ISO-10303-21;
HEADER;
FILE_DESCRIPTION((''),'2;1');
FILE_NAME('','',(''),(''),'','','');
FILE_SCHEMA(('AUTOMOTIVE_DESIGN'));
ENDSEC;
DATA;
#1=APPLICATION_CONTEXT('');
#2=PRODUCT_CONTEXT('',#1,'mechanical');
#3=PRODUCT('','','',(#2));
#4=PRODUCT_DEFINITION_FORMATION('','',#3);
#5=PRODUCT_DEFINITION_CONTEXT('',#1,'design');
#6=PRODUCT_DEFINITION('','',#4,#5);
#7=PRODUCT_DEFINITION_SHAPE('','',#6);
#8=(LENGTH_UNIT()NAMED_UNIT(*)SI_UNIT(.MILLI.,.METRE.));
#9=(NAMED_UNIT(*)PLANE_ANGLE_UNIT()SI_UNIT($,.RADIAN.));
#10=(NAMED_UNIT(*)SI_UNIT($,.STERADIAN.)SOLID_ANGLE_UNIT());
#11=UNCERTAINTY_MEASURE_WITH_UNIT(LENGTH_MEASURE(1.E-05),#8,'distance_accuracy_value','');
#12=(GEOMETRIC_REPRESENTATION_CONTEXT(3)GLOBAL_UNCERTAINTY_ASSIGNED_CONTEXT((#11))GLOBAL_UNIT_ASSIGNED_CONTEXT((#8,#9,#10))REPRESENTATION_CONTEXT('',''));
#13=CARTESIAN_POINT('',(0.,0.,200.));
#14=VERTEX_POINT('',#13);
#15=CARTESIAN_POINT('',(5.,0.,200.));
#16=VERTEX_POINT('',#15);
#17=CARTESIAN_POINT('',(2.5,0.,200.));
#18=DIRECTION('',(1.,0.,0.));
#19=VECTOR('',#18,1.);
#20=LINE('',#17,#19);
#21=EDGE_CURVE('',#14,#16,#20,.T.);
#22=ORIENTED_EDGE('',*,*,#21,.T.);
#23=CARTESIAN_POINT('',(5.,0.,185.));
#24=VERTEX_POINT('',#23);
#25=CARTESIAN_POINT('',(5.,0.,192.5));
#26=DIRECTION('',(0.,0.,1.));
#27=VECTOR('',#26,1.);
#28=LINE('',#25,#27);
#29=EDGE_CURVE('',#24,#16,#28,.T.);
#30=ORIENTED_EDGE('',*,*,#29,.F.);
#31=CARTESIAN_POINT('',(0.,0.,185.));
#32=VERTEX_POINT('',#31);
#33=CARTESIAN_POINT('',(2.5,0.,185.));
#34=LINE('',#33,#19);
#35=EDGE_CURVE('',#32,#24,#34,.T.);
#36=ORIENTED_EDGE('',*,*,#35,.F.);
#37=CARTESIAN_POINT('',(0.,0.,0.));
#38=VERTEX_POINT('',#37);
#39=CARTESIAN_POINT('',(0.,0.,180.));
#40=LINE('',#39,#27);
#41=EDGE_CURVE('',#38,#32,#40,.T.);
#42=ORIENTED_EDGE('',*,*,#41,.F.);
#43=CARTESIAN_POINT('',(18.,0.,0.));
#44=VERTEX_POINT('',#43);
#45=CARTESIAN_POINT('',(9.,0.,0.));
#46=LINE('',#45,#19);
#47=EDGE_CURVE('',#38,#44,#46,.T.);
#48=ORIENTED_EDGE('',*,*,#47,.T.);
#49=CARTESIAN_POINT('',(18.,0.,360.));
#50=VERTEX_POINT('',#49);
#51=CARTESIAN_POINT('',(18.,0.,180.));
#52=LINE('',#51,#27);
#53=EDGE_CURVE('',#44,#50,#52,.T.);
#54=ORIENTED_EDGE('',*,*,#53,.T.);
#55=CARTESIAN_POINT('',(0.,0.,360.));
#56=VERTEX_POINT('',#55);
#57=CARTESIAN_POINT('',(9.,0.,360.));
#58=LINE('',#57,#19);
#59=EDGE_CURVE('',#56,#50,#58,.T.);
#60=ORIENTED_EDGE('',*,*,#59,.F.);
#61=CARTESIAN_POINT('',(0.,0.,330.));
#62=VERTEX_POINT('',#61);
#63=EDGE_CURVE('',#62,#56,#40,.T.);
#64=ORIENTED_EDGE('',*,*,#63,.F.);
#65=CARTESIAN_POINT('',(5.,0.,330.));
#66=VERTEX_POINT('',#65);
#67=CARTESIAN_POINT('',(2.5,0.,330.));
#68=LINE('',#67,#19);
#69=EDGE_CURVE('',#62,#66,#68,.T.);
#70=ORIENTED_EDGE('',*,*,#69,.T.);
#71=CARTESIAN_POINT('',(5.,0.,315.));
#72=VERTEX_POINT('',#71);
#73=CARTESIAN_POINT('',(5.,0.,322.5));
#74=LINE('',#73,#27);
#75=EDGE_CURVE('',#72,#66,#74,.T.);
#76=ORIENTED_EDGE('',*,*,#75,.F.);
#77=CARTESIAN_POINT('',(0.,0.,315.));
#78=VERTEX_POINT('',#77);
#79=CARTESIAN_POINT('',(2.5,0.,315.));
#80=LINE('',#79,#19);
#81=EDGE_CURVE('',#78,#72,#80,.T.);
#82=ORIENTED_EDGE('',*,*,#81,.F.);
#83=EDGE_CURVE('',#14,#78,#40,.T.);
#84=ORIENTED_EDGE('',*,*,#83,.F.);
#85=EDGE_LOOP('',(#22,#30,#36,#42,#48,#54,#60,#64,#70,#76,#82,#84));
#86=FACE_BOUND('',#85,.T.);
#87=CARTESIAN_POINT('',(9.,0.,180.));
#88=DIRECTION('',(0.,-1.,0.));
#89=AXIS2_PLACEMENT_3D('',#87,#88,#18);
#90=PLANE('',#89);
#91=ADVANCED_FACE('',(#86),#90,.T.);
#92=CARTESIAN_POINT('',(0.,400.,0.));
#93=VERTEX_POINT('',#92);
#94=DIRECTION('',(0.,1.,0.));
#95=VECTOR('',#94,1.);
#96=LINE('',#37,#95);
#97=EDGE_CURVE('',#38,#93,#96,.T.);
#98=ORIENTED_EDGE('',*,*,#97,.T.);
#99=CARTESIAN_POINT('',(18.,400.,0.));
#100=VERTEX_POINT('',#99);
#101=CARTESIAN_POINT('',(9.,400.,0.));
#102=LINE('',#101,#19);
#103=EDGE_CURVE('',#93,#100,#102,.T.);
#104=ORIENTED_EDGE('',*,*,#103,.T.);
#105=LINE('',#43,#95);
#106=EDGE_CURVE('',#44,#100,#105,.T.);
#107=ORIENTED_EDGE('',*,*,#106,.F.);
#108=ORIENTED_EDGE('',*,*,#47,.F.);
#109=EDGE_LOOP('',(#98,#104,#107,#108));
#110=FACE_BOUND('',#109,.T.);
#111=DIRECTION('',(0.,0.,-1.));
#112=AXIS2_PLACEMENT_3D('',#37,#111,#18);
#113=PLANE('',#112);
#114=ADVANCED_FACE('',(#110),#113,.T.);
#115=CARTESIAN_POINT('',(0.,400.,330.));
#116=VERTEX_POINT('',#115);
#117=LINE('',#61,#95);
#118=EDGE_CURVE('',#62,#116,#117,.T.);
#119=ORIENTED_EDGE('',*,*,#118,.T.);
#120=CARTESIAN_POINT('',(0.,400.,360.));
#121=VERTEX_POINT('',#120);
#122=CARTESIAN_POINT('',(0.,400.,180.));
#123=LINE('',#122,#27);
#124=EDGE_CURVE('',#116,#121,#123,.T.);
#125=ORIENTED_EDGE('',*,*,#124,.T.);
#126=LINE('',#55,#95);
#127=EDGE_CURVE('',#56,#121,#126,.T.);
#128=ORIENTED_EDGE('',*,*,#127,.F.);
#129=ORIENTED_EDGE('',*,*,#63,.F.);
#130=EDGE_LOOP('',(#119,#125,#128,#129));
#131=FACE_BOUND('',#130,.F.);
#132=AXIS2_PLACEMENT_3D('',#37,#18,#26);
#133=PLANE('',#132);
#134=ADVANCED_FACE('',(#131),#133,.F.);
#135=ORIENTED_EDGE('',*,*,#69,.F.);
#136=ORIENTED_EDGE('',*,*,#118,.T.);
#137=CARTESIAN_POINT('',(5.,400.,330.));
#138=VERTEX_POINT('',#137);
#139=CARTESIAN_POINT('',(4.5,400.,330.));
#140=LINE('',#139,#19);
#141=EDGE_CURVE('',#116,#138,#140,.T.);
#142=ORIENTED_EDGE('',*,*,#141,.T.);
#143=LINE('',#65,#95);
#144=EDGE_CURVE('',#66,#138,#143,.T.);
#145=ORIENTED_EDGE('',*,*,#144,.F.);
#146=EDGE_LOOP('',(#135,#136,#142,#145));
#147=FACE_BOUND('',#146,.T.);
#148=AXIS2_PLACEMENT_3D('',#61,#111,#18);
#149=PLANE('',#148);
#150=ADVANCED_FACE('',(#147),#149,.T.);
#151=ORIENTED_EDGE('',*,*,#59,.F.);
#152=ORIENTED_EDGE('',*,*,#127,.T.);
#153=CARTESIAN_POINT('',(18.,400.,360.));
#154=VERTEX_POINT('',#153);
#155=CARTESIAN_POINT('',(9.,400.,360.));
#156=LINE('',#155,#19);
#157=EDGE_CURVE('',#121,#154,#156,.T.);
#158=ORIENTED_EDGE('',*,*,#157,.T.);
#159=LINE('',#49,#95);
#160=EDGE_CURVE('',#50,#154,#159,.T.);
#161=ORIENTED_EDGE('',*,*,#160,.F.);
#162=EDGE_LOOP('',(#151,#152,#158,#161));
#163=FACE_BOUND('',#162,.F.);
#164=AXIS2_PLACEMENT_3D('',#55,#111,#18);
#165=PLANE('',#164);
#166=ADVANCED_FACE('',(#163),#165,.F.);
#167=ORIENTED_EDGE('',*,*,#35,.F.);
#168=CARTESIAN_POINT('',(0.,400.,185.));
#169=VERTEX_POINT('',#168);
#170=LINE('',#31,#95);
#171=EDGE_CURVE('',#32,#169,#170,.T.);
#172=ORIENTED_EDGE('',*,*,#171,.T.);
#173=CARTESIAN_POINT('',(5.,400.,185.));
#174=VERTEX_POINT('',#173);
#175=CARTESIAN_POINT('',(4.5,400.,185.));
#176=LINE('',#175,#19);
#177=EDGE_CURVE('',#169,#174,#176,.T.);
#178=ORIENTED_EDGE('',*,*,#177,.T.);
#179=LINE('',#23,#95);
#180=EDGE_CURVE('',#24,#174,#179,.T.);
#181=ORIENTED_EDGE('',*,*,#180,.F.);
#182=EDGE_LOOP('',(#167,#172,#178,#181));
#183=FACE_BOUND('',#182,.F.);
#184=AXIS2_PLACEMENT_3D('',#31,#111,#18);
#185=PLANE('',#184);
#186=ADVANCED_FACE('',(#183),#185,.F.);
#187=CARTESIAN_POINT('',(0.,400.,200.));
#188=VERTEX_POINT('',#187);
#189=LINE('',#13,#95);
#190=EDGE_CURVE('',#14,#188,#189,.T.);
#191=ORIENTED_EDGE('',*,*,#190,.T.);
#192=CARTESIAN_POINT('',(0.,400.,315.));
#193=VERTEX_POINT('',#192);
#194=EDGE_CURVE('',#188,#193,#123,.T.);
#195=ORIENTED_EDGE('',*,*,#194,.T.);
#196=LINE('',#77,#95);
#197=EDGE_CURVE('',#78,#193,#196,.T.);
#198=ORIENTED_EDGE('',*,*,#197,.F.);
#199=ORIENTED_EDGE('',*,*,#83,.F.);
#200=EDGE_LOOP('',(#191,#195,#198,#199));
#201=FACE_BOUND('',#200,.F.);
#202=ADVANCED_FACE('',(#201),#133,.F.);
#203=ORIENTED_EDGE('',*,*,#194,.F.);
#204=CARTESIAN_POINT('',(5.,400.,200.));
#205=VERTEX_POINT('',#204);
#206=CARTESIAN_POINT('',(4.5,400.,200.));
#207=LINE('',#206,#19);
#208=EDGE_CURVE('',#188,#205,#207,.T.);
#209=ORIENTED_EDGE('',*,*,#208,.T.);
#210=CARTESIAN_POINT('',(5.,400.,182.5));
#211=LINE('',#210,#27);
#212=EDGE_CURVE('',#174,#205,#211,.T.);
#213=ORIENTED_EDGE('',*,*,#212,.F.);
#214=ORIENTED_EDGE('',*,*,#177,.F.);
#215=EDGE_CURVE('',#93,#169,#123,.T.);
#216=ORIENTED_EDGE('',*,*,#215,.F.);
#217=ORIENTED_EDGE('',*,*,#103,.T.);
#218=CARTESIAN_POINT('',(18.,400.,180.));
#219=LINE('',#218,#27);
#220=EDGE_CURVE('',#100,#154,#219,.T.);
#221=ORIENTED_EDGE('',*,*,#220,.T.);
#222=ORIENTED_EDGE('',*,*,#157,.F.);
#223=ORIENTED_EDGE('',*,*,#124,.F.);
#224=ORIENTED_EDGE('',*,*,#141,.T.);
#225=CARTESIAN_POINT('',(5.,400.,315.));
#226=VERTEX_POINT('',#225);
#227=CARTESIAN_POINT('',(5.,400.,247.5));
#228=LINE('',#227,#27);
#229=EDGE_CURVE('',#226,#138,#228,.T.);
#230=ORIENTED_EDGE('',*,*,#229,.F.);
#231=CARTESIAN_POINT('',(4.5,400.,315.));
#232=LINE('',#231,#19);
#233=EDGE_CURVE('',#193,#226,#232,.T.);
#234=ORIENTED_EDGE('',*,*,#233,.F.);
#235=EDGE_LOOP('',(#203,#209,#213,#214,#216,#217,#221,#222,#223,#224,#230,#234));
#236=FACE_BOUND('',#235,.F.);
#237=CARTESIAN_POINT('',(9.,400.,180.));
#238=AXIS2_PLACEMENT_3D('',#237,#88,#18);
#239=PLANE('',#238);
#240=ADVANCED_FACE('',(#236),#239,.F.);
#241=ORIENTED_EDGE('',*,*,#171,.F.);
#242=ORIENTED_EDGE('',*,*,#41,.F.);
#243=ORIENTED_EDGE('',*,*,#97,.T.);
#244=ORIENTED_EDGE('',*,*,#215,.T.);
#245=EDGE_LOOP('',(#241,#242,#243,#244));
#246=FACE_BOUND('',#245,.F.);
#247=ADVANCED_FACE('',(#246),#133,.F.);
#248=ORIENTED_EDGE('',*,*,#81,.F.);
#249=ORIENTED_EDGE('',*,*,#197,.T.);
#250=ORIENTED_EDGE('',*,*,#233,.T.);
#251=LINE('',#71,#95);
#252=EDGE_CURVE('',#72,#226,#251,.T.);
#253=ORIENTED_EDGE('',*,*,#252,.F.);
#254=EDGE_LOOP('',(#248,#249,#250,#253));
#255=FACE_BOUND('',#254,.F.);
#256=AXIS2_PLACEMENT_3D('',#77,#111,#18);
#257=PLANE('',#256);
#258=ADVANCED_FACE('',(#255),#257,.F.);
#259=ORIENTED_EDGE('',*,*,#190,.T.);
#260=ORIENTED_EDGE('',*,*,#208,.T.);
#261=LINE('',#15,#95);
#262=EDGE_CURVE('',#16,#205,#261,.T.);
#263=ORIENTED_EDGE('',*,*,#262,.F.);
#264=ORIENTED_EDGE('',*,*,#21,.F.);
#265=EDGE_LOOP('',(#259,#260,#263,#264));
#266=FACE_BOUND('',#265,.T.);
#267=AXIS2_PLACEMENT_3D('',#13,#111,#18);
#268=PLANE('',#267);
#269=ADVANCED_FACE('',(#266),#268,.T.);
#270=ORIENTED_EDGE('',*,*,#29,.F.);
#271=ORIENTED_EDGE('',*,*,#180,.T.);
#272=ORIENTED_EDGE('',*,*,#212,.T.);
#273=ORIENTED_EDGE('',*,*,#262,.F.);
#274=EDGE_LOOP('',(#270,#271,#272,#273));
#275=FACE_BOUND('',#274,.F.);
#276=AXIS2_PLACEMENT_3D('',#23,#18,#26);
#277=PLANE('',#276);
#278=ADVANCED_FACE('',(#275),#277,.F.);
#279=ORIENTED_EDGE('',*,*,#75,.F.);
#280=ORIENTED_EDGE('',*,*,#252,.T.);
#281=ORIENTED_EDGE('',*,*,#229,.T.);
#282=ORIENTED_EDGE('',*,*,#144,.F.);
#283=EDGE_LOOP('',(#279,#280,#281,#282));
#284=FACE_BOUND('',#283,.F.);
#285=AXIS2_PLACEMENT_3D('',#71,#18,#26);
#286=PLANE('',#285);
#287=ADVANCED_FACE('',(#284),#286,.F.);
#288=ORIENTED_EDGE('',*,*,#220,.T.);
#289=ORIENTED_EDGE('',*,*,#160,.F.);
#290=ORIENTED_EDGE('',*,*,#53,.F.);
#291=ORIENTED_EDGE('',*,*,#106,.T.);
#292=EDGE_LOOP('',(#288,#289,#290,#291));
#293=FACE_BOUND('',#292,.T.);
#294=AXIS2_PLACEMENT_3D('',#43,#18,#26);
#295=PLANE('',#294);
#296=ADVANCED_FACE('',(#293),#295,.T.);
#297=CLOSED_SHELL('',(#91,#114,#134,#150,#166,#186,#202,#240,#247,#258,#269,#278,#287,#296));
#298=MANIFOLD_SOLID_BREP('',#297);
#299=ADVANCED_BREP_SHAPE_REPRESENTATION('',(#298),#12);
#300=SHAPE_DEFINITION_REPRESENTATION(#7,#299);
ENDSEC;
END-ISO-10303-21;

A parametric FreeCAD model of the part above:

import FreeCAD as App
import Part
import Sketcher

V = App.Vector

doc = App.newDocument("Part")
body = doc.addObject("PartDesign::Body", "Body")

# Sketch on XZ plane
sketch1 = body.newObject("Sketcher::SketchObject", "Sketch")
sketch1.AttachmentSupport = (doc.getObject("XZ_Plane"), [""])
sketch1.MapMode = "FlatFace"
sketch1.addGeometry([
    Part.LineSegment(V(0, 360, 0), V(0, 0, 0)),
    Part.LineSegment(V(0, 0, 0), V(18, 0, 0)),
    Part.LineSegment(V(18, 0, 0), V(18, 360, 0)),
    Part.LineSegment(V(18, 360, 0), V(0, 360, 0)),
], False)
sketch1.addConstraint([
    Sketcher.Constraint("Coincident", 0, 2, 1, 1),
    Sketcher.Constraint("Coincident", 1, 2, 2, 1),
    Sketcher.Constraint("Coincident", 2, 2, 3, 1),
    Sketcher.Constraint("Coincident", 3, 2, 0, 1),
    Sketcher.Constraint("Vertical", 0),
    Sketcher.Constraint("Horizontal", 1),
    Sketcher.Constraint("Vertical", 2),
    Sketcher.Constraint("Horizontal", 3),
    Sketcher.Constraint("Coincident", 0, 2, -1, 1),
    Sketcher.Constraint("DistanceX", 1, 1, 1, 2, 18.0),
    Sketcher.Constraint("DistanceY", 0, 2, 0, 1, 360.0),
])
pad1 = body.newObject("PartDesign::Pad", "Pad")
pad1.Profile = sketch1
pad1.Length = 400
pad1.Reversed = True

# Sketch on XZ plane
sketch2 = body.newObject("Sketcher::SketchObject", "Sketch001")
sketch2.AttachmentSupport = (doc.getObject("XZ_Plane"), [""])
sketch2.MapMode = "FlatFace"
sketch2.addGeometry([
    Part.LineSegment(V(0, 200, 0), V(0, 185, 0)),  # 0
    Part.LineSegment(V(0, 185, 0), V(5, 185, 0)),  # 1
    Part.LineSegment(V(5, 185, 0), V(5, 200, 0)),  # 2
    Part.LineSegment(V(5, 200, 0), V(0, 200, 0)),  # 3
    Part.LineSegment(V(0, 330, 0), V(0, 315, 0)),  # 4
    Part.LineSegment(V(0, 315, 0), V(5, 315, 0)),  # 5
    Part.LineSegment(V(5, 315, 0), V(5, 330, 0)),  # 6
    Part.LineSegment(V(5, 330, 0), V(0, 330, 0)),  # 7
], False)
sketch2.addConstraint([
    Sketcher.Constraint("Coincident", 0, 2, 1, 1),
    Sketcher.Constraint("Coincident", 1, 2, 2, 1),
    Sketcher.Constraint("Coincident", 2, 2, 3, 1),
    Sketcher.Constraint("Coincident", 3, 2, 0, 1),
    Sketcher.Constraint("Coincident", 4, 2, 5, 1),
    Sketcher.Constraint("Coincident", 5, 2, 6, 1),
    Sketcher.Constraint("Coincident", 6, 2, 7, 1),
    Sketcher.Constraint("Coincident", 7, 2, 4, 1),
    Sketcher.Constraint("Vertical", 0),
    Sketcher.Constraint("Horizontal", 1),
    Sketcher.Constraint("Vertical", 2),
    Sketcher.Constraint("Horizontal", 3),
    Sketcher.Constraint("Vertical", 4),
    Sketcher.Constraint("Horizontal", 5),
    Sketcher.Constraint("Vertical", 6),
    Sketcher.Constraint("Horizontal", 7),
    Sketcher.Constraint("PointOnObject", 0, 2, -2),
    Sketcher.Constraint("PointOnObject", 4, 2, -2),
    Sketcher.Constraint("Vertical", 2, 2, 5, 2),
    Sketcher.Constraint("Equal", 2, 4),
    Sketcher.Constraint("DistanceX", 1, 1, 1, 2, 5.0),
    Sketcher.Constraint("DistanceY", 0, 2, 0, 1, 15.0),
    Sketcher.Constraint("DistanceY", -1, 1, 0, 2, 185.0),
    Sketcher.Constraint("DistanceY", -1, 1, 4, 2, 315.0),
])
pocket1 = body.newObject("PartDesign::Pocket", "Pocket")
pocket1.Profile = sketch2
pocket1.Type = "ThroughAll"

doc.recompute()
